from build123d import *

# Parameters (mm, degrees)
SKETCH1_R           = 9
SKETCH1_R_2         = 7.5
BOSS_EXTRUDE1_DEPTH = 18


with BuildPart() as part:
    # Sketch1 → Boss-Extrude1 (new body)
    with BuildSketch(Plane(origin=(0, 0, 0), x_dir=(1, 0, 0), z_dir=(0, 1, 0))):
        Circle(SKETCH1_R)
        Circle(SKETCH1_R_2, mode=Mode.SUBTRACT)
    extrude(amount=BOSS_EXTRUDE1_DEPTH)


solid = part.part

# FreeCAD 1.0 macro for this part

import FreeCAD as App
import Part
import Sketcher
Q = App.Units.Quantity

doc = App.newDocument("Part")
body = doc.addObject("PartDesign::Body", "Body")

# Sketch on XZ plane
sketch1 = body.newObject("Sketcher::SketchObject", "Sketch")
sketch1.AttachmentSupport = (doc.getObject("XZ_Plane"), [""])
sketch1.MapMode = "FlatFace"
sketch1.addGeometry([
    Part.Circle(App.Vector(0, 0, 0), App.Vector(0, 0, 1), 9),
    Part.Circle(App.Vector(0, 0, 0), App.Vector(0, 0, 1), 8),
], False)
sketch1.addConstraint([
    Sketcher.Constraint("Coincident", 0, 3, -1, 1),
    Sketcher.Constraint("Coincident", 1, 3, -1, 1),
    Sketcher.Constraint("Diameter", 0, Q("18 mm")),
    Sketcher.Constraint("Diameter", 1, Q("15 mm")),
])
pad1 = body.newObject("PartDesign::Pad", "Pad")
pad1.Profile = sketch1
pad1.Length = 18
pad1.Reversed = True

doc.recompute()
